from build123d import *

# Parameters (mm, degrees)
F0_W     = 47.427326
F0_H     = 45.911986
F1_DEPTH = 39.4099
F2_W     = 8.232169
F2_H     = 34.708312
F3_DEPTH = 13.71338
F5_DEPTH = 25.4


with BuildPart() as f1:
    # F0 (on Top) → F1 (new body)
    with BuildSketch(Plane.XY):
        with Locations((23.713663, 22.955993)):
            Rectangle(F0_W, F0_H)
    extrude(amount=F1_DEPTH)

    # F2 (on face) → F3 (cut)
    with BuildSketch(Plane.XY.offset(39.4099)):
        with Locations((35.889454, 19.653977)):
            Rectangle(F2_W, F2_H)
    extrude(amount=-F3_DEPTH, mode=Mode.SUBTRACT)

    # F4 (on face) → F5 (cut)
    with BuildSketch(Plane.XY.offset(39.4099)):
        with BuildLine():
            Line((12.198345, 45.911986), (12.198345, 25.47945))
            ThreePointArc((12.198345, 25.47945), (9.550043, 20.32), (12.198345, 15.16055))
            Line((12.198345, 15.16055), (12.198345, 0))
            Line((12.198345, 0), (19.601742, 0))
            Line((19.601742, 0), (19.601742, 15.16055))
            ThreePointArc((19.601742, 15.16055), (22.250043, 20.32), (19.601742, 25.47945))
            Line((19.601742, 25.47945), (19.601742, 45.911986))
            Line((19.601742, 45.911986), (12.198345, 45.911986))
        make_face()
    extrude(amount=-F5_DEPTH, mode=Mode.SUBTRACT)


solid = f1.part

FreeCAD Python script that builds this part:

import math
import FreeCAD as App
import Part
import Sketcher
Q = App.Units.Quantity


def add_polygon(sketch, points):
    """Adds a closed chain of lines whose ends are joined by coincident constraints."""
    first, n = sketch.GeometryCount, len(points)
    for a, b in zip(points, points[1:] + points[:1]):
        sketch.addGeometry(Part.LineSegment(App.Vector(*a, 0), App.Vector(*b, 0)), False)
    for i in range(n):
        sketch.addConstraint(Sketcher.Constraint("Coincident", first + i, 2, first + (i + 1) % n, 1))

doc = App.newDocument("Part")
params = doc.addObject("Spreadsheet::Sheet", "Params")
for row, (alias, value) in enumerate([
    ("pad1_length", "39.4099 mm"),
    ("pocket1_length", "13.71338 mm"),
    ("sketch3_radius", "0.2499999 in"),
    ("pocket2_length", "1 in"),
], start=1):
    params.set(f"A{row}", alias)
    params.set(f"B{row}", "=" + value)
    params.setAlias(f"B{row}", alias)

body = doc.addObject("PartDesign::Body", "Body")

# Sketch on XY plane
sketch1 = body.newObject("Sketcher::SketchObject", "Sketch")
sketch1.AttachmentSupport = (doc.getObject("XY_Plane"), [""])
sketch1.MapMode = "FlatFace"
add_polygon(sketch1, [(0, 46), (0, 0), (47, 0), (47, 46)])  # lines 0-3
sketch1.addConstraint([
    Sketcher.Constraint("Vertical", 0),
    Sketcher.Constraint("Horizontal", 1),
    Sketcher.Constraint("Vertical", 2),
    Sketcher.Constraint("Horizontal", 3),
    Sketcher.Constraint("Coincident", 0, 2, -1, 1),
    Sketcher.Constraint("DistanceX", 1, 1, 1, 2, 47.427326),
    Sketcher.Constraint("DistanceY", 0, 2, 0, 1, 45.911986),
])
pad1 = body.newObject("PartDesign::Pad", "Pad")
pad1.Profile = sketch1
pad1.setExpression("Length", "Params.pad1_length")

# Sketch on XY plane
sketch2 = body.newObject("Sketcher::SketchObject", "Sketch001")
sketch2.AttachmentSupport = (doc.getObject("XY_Plane"), [""])
sketch2.MapMode = "FlatFace"
sketch2.AttachmentOffset = App.Placement(App.Vector(0, 0, 39.4099), App.Rotation())
add_polygon(sketch2, [(32, 37), (32, 2), (40, 2), (40, 37)])  # lines 0-3
sketch2.addConstraint([
    Sketcher.Constraint("Vertical", 0),
    Sketcher.Constraint("Horizontal", 1),
    Sketcher.Constraint("Vertical", 2),
    Sketcher.Constraint("Horizontal", 3),
    Sketcher.Constraint("DistanceX", 1, 1, 1, 2, 8.232169),
    Sketcher.Constraint("DistanceY", 0, 2, 0, 1, 34.708312),
    Sketcher.Constraint("DistanceX", -1, 1, 0, 2, 31.77337),
    Sketcher.Constraint("DistanceY", -1, 1, 0, 2, 2.299821),
])
pocket1 = body.newObject("PartDesign::Pocket", "Pocket")
pocket1.Profile = sketch2
pocket1.setExpression("Length", "Params.pocket1_length")

# Sketch on XY plane
sketch3 = body.newObject("Sketcher::SketchObject", "Sketch002")
sketch3.AttachmentSupport = (doc.getObject("XY_Plane"), [""])
sketch3.MapMode = "FlatFace"
sketch3.AttachmentOffset = App.Placement(App.Vector(0, 0, 39.4099), App.Rotation())
sketch3.addGeometry([
    Part.LineSegment(App.Vector(12, 46, 0), App.Vector(12, 25, 0)),  # 0
    Part.ArcOfCircle(Part.Circle(App.Vector(16, 20, 0), App.Vector(0, 0, 1), 6), math.radians(126), math.radians(234)),  # 1
    Part.LineSegment(App.Vector(12, 15, 0), App.Vector(12, 0, 0)),  # 2
    Part.LineSegment(App.Vector(12, 0, 0), App.Vector(20, 0, 0)),  # 3
    Part.LineSegment(App.Vector(20, 0, 0), App.Vector(20, 15, 0)),  # 4
    Part.ArcOfCircle(Part.Circle(App.Vector(16, 20, 0), App.Vector(0, 0, 1), 6), math.radians(-54), math.radians(54)),  # 5
    Part.LineSegment(App.Vector(20, 25, 0), App.Vector(20, 46, 0)),  # 6
    Part.LineSegment(App.Vector(20, 46, 0), App.Vector(12, 46, 0)),  # 7
], False)
sketch3.addConstraint([
    Sketcher.Constraint("Coincident", 0, 2, 1, 1),
    Sketcher.Constraint("Coincident", 1, 2, 2, 1),
    Sketcher.Constraint("Coincident", 2, 2, 3, 1),
    Sketcher.Constraint("Coincident", 3, 2, 4, 1),
    Sketcher.Constraint("Coincident", 4, 2, 5, 1),
    Sketcher.Constraint("Coincident", 5, 2, 6, 1),
    Sketcher.Constraint("Coincident", 6, 2, 7, 1),
    Sketcher.Constraint("Coincident", 7, 2, 0, 1),
    Sketcher.Constraint("Vertical", 0),
    Sketcher.Constraint("Vertical", 2),
    Sketcher.Constraint("Horizontal", 3),
    Sketcher.Constraint("Vertical", 4),
    Sketcher.Constraint("Vertical", 6),
    Sketcher.Constraint("Horizontal", 7),
    Sketcher.Constraint("Coincident", 5, 3, 1, 3),
    Sketcher.Constraint("Equal", 1, 5),
    Sketcher.Constraint("PointOnObject", 2, 2, -1),
    Sketcher.Constraint("Horizontal", 1, 2, 4, 2),
    Sketcher.Constraint("Horizontal", 0, 2, 5, 2),
    Sketcher.Constraint("Vertical", 0, 2, 1, 2),
    Sketcher.Constraint("Radius", 1, Q("0.2499999 in")),
    Sketcher.Constraint("DistanceY", -1, 1, 1, 3, Q("0.8 in")),
    Sketcher.Constraint("DistanceY", 2, 2, 2, 1, 15.16055),
    Sketcher.Constraint("DistanceY", 0, 2, 0, 1, 20.432536),
    Sketcher.Constraint("DistanceX", -1, 1, 1, 3, 15.900042),
])
sketch3.setExpression("Constraints[20]", "Params.sketch3_radius")
pocket2 = body.newObject("PartDesign::Pocket", "Pocket001")
pocket2.Profile = sketch3
pocket2.setExpression("Length", "Params.pocket2_length")

doc.recompute()
